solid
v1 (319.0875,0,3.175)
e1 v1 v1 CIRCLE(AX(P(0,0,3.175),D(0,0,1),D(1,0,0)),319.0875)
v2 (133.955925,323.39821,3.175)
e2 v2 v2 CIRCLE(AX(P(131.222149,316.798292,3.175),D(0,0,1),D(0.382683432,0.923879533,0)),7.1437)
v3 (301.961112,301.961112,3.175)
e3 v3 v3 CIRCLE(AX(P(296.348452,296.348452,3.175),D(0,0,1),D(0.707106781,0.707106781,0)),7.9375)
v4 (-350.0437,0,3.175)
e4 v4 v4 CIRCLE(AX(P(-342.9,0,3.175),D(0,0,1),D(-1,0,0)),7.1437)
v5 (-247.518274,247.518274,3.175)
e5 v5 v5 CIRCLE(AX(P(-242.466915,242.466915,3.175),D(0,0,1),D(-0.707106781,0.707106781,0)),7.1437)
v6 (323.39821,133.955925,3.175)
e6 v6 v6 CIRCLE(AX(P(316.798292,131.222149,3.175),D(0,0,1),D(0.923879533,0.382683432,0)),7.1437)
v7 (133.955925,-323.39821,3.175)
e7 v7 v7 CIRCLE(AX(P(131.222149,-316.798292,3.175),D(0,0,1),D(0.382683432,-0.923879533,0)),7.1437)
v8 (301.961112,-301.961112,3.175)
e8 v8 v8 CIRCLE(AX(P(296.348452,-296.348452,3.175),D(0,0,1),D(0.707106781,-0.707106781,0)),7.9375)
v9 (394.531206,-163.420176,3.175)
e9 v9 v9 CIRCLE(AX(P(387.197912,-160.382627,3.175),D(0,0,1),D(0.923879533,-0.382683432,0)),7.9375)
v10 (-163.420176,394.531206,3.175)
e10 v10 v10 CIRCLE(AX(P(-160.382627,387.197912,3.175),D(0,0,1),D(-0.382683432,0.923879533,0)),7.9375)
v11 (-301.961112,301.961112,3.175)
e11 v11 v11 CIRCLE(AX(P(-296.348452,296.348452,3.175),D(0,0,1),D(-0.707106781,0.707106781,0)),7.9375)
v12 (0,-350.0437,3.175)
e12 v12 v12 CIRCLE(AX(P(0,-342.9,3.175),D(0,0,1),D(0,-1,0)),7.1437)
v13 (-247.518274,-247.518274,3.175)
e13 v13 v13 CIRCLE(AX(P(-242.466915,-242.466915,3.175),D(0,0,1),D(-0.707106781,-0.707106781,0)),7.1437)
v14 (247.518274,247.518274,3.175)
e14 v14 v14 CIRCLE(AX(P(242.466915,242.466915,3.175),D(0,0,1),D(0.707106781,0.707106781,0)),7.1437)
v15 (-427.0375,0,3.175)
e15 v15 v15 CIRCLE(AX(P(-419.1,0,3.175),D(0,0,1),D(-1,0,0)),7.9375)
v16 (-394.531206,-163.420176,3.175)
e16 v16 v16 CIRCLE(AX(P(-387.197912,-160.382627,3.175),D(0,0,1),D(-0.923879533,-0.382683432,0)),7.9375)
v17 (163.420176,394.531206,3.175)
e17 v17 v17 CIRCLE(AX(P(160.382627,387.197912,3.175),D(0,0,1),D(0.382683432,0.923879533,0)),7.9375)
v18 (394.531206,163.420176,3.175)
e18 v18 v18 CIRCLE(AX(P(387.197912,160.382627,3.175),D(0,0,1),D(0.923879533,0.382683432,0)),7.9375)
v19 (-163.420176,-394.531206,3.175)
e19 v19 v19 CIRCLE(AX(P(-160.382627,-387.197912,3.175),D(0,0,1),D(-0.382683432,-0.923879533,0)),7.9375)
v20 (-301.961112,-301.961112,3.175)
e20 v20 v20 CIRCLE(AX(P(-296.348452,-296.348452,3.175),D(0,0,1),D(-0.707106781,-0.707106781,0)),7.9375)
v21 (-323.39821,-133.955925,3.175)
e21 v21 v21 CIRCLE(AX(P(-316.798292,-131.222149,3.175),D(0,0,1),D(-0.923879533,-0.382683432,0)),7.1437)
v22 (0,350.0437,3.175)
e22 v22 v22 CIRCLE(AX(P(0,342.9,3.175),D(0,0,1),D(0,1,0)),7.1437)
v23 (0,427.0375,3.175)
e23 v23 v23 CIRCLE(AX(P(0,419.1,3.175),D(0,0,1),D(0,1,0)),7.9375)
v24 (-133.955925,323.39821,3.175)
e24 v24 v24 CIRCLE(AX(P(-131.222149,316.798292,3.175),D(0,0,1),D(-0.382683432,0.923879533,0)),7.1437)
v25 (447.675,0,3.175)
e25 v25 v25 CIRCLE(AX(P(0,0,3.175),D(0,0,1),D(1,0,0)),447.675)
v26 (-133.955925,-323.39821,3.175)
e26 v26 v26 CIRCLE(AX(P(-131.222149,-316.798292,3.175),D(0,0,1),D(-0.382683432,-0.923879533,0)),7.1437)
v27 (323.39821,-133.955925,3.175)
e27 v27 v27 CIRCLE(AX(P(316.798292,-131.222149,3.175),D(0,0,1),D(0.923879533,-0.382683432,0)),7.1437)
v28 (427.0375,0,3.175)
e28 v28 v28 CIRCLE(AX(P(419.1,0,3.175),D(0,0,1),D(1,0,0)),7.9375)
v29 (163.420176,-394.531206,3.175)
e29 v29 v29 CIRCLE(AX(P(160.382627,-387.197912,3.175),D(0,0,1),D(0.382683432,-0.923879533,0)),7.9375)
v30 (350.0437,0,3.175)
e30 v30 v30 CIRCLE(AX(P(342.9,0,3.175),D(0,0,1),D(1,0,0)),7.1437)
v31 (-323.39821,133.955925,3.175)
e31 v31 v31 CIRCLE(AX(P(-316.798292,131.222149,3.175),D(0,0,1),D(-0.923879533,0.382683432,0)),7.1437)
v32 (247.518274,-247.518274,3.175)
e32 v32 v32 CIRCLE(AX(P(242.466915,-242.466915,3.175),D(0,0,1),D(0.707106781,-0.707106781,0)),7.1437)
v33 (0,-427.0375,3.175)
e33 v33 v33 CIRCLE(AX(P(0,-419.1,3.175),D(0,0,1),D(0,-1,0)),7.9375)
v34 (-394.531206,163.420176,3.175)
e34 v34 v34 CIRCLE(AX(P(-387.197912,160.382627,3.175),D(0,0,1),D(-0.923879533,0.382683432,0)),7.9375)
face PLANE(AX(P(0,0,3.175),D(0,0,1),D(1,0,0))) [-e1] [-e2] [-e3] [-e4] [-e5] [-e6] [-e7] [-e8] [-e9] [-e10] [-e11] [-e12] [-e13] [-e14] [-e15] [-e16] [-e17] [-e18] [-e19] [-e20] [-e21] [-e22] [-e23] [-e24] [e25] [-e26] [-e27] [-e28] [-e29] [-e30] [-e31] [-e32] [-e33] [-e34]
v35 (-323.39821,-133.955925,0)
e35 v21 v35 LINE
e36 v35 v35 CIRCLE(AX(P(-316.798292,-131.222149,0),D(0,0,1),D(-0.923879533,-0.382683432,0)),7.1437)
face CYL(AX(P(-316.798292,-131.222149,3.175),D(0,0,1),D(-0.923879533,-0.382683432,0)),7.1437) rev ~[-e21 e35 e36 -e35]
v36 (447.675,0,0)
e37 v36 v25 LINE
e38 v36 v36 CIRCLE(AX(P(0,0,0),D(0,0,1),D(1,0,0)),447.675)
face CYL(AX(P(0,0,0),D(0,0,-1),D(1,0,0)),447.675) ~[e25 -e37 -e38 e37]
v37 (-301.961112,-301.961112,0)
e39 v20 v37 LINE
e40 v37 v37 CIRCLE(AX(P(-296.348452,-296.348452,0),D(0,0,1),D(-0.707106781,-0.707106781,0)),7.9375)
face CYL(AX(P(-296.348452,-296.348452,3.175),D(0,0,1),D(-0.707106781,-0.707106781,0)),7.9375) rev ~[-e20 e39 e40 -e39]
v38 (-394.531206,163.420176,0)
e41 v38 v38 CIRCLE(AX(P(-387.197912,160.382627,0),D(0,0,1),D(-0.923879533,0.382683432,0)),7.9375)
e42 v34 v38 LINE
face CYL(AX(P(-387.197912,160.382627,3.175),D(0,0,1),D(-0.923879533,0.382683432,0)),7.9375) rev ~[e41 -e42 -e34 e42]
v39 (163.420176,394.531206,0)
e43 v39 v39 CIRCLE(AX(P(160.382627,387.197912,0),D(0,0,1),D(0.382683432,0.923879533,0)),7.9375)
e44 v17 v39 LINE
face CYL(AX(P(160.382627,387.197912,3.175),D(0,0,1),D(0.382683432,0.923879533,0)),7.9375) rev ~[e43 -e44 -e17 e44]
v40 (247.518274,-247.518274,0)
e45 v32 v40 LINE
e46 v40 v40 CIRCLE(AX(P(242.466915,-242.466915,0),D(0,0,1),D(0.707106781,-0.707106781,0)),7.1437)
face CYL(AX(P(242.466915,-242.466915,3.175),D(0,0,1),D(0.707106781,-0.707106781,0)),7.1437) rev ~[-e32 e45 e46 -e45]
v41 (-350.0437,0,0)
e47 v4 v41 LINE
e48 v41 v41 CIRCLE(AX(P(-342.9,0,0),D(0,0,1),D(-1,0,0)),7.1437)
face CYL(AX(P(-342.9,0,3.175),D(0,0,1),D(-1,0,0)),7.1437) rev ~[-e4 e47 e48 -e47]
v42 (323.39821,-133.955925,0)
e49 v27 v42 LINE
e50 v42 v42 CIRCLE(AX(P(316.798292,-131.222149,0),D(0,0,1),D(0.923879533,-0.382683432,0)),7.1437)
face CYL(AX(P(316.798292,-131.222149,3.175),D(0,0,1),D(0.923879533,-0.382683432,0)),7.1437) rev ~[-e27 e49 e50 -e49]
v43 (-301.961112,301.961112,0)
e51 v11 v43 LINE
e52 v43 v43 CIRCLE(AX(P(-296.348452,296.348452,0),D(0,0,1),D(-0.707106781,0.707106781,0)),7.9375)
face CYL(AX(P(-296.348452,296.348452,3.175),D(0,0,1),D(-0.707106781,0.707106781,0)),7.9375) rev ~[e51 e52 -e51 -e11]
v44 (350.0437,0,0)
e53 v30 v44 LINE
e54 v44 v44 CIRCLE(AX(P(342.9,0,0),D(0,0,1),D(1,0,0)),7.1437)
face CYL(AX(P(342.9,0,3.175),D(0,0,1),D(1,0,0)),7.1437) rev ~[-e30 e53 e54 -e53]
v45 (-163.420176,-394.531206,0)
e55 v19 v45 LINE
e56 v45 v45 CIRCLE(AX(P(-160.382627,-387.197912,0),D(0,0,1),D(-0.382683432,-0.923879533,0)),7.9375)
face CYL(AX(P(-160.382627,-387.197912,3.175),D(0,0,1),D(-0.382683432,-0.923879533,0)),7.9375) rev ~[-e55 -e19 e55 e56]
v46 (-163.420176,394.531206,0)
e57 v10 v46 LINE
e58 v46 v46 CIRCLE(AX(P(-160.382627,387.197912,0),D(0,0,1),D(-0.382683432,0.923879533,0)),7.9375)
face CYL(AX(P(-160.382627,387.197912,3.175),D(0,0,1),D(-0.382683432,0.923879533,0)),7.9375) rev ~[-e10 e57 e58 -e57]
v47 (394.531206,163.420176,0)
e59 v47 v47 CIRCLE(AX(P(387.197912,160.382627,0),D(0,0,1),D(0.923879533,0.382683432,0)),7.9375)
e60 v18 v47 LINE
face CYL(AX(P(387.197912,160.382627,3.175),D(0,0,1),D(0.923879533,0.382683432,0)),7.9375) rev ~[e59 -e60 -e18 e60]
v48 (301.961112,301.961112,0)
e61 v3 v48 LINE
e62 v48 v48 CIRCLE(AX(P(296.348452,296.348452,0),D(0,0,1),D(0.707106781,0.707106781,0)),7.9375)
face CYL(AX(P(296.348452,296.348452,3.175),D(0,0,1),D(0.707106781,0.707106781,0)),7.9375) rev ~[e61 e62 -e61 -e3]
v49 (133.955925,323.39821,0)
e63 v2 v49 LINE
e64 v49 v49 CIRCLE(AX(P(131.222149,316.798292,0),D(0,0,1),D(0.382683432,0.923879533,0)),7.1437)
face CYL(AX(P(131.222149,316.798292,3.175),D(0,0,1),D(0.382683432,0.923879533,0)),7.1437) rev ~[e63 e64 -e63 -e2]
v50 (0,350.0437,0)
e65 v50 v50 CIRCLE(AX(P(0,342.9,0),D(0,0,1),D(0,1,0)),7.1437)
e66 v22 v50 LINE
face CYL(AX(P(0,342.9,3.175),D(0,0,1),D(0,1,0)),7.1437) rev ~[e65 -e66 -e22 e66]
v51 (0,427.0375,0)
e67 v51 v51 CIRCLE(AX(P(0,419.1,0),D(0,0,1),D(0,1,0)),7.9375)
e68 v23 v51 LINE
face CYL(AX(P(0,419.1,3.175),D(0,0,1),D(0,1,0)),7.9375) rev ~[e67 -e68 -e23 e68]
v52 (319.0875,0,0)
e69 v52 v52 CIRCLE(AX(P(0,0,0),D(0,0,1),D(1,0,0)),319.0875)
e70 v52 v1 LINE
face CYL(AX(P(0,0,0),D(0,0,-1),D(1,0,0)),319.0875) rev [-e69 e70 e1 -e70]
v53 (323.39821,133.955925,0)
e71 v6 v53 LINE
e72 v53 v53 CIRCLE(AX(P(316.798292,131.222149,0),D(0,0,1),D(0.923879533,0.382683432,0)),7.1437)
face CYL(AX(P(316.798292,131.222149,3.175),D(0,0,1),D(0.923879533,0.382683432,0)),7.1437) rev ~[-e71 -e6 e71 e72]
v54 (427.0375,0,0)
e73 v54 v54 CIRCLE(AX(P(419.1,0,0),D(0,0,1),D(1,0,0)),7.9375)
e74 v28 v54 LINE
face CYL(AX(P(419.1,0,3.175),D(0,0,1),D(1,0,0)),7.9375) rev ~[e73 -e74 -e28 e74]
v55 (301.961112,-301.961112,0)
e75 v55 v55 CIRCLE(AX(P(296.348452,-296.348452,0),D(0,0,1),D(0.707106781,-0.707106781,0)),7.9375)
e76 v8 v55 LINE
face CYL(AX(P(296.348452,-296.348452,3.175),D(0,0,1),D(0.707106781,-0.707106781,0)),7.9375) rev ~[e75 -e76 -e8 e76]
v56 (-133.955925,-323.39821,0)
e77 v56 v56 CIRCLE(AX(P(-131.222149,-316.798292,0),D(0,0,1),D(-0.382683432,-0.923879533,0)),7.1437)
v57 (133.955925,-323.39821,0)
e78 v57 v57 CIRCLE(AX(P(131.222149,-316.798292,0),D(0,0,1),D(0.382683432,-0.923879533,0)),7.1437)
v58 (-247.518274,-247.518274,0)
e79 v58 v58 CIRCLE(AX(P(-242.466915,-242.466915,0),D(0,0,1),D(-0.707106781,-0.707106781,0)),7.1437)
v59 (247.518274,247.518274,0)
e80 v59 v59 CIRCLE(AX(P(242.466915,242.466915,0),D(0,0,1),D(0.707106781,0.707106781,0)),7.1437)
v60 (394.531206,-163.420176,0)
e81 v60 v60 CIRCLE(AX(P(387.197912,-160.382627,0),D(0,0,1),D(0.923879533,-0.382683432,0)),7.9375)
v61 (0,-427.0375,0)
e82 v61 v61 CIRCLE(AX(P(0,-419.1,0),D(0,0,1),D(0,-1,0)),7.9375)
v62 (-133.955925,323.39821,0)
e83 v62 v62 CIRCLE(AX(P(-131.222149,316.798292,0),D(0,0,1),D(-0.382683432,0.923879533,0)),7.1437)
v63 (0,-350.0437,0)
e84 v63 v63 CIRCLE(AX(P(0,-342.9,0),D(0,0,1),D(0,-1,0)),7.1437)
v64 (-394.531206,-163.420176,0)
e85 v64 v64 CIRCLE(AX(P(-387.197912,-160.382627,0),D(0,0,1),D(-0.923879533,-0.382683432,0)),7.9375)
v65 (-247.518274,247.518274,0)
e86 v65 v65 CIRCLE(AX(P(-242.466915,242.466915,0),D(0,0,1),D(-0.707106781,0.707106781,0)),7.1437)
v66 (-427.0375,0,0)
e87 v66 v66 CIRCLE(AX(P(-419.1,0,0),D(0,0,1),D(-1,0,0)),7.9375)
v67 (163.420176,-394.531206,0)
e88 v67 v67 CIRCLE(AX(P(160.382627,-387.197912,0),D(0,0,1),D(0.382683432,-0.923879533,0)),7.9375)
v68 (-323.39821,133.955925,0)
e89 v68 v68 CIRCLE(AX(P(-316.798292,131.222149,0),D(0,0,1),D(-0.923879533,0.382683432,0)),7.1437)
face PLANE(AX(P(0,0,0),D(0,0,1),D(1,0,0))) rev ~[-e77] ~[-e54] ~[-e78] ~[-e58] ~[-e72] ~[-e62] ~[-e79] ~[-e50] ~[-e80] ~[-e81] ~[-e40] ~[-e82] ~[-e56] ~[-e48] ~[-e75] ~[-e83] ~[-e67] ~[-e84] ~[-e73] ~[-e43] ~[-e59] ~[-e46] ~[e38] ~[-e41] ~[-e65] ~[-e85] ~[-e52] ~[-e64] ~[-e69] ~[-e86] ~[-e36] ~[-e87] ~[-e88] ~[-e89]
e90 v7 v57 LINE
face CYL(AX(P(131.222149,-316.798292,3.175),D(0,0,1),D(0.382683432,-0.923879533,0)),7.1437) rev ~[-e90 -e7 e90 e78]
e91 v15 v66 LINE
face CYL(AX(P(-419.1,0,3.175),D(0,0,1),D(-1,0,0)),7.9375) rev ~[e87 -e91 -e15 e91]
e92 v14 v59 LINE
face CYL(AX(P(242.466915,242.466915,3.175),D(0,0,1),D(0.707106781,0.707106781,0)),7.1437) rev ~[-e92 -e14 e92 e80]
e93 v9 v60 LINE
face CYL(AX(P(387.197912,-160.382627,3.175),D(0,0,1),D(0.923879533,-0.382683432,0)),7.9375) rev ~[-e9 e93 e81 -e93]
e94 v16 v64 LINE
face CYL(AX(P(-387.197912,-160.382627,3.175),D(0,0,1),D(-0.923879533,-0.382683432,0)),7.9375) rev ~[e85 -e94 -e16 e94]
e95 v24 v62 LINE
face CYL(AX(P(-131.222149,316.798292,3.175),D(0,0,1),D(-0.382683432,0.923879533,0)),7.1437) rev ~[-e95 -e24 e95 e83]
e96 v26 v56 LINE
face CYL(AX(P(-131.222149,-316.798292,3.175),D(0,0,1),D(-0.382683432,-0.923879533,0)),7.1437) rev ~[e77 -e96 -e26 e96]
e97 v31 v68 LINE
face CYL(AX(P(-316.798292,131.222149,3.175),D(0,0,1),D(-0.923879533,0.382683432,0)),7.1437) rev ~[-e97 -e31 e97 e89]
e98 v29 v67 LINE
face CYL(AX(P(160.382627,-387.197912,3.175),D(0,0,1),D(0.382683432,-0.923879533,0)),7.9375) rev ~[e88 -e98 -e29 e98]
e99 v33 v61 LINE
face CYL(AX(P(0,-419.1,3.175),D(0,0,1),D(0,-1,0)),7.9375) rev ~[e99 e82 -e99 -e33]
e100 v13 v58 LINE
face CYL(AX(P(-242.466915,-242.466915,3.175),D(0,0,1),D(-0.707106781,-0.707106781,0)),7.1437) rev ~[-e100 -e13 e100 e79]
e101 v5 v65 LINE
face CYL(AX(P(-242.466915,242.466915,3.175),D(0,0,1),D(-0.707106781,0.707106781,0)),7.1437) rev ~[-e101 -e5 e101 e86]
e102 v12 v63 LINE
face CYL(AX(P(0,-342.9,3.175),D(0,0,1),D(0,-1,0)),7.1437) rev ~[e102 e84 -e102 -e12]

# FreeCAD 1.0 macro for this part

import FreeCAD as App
import Part
import Sketcher
from FreeCAD import Vector
Q = App.Units.Quantity

doc = App.newDocument("Part")
body = doc.addObject("PartDesign::Body", "Body")

# Sketch on XY plane
sketch1 = body.newObject("Sketcher::SketchObject", "Sketch")
sketch1.AttachmentSupport = (doc.getObject("XY_Plane"), [""])
sketch1.MapMode = "FlatFace"
sketch1.addGeometry(Part.Circle(Vector(0, 0, 0), Vector(0, 0, 1), 448), False)
sketch1.addGeometry(Part.Circle(Vector(0, 0, 0), Vector(0, 0, 1), 319), False)
sketch1.addConstraint(Sketcher.Constraint("Coincident", 0, 3, -1, 1))
sketch1.addConstraint(Sketcher.Constraint("Coincident", 1, 3, -1, 1))
sketch1.addConstraint(Sketcher.Constraint("Diameter", 0, Q("35.25 in")))
sketch1.addConstraint(Sketcher.Constraint("Diameter", 1, Q("25.125 in")))
pad1 = body.newObject("PartDesign::Pad", "Pad")
pad1.Profile = sketch1
pad1.Length = Q("0.125 in")

# Sketch on XY plane
sketch2 = body.newObject("Sketcher::SketchObject", "Sketch001")
sketch2.AttachmentSupport = (doc.getObject("XY_Plane"), [""])
sketch2.MapMode = "FlatFace"
sketch2.AttachmentOffset = App.Placement(Vector(0, 0, 0.125 * 25.4), App.Rotation())
sketch2.addGeometry(Part.Circle(Vector(343, 0, 0), Vector(0, 0, 1), 7), False)
sketch2.addGeometry(Part.Circle(Vector(419, 0, 0), Vector(0, 0, 1), 8), False)
sketch2.addConstraint(Sketcher.Constraint("PointOnObject", 0, 3, -1))
sketch2.addConstraint(Sketcher.Constraint("PointOnObject", 1, 3, -1))
sketch2.addConstraint(Sketcher.Constraint("Diameter", 0, Q("0.5625 in")))
sketch2.addConstraint(Sketcher.Constraint("Diameter", 1, Q("0.625 in")))
sketch2.addConstraint(Sketcher.Constraint("DistanceX", -1, 1, 0, 3, Q("13.5 in")))
sketch2.addConstraint(Sketcher.Constraint("DistanceX", -1, 1, 1, 3, Q("16.5 in")))
pocket1 = body.newObject("PartDesign::Pocket", "Pocket")
pocket1.Profile = sketch2
pocket1.Length = Q("0.125 in")
doc.recompute()

polarpattern = body.newObject("PartDesign::PolarPattern", "PolarPattern")
polarpattern.Originals = [pocket1]
polarpattern.Axis = (doc.getObject("Z_Axis"), [""])
polarpattern.Angle = 360
polarpattern.Occurrences = 16
body.Tip = polarpattern

doc.recompute()
